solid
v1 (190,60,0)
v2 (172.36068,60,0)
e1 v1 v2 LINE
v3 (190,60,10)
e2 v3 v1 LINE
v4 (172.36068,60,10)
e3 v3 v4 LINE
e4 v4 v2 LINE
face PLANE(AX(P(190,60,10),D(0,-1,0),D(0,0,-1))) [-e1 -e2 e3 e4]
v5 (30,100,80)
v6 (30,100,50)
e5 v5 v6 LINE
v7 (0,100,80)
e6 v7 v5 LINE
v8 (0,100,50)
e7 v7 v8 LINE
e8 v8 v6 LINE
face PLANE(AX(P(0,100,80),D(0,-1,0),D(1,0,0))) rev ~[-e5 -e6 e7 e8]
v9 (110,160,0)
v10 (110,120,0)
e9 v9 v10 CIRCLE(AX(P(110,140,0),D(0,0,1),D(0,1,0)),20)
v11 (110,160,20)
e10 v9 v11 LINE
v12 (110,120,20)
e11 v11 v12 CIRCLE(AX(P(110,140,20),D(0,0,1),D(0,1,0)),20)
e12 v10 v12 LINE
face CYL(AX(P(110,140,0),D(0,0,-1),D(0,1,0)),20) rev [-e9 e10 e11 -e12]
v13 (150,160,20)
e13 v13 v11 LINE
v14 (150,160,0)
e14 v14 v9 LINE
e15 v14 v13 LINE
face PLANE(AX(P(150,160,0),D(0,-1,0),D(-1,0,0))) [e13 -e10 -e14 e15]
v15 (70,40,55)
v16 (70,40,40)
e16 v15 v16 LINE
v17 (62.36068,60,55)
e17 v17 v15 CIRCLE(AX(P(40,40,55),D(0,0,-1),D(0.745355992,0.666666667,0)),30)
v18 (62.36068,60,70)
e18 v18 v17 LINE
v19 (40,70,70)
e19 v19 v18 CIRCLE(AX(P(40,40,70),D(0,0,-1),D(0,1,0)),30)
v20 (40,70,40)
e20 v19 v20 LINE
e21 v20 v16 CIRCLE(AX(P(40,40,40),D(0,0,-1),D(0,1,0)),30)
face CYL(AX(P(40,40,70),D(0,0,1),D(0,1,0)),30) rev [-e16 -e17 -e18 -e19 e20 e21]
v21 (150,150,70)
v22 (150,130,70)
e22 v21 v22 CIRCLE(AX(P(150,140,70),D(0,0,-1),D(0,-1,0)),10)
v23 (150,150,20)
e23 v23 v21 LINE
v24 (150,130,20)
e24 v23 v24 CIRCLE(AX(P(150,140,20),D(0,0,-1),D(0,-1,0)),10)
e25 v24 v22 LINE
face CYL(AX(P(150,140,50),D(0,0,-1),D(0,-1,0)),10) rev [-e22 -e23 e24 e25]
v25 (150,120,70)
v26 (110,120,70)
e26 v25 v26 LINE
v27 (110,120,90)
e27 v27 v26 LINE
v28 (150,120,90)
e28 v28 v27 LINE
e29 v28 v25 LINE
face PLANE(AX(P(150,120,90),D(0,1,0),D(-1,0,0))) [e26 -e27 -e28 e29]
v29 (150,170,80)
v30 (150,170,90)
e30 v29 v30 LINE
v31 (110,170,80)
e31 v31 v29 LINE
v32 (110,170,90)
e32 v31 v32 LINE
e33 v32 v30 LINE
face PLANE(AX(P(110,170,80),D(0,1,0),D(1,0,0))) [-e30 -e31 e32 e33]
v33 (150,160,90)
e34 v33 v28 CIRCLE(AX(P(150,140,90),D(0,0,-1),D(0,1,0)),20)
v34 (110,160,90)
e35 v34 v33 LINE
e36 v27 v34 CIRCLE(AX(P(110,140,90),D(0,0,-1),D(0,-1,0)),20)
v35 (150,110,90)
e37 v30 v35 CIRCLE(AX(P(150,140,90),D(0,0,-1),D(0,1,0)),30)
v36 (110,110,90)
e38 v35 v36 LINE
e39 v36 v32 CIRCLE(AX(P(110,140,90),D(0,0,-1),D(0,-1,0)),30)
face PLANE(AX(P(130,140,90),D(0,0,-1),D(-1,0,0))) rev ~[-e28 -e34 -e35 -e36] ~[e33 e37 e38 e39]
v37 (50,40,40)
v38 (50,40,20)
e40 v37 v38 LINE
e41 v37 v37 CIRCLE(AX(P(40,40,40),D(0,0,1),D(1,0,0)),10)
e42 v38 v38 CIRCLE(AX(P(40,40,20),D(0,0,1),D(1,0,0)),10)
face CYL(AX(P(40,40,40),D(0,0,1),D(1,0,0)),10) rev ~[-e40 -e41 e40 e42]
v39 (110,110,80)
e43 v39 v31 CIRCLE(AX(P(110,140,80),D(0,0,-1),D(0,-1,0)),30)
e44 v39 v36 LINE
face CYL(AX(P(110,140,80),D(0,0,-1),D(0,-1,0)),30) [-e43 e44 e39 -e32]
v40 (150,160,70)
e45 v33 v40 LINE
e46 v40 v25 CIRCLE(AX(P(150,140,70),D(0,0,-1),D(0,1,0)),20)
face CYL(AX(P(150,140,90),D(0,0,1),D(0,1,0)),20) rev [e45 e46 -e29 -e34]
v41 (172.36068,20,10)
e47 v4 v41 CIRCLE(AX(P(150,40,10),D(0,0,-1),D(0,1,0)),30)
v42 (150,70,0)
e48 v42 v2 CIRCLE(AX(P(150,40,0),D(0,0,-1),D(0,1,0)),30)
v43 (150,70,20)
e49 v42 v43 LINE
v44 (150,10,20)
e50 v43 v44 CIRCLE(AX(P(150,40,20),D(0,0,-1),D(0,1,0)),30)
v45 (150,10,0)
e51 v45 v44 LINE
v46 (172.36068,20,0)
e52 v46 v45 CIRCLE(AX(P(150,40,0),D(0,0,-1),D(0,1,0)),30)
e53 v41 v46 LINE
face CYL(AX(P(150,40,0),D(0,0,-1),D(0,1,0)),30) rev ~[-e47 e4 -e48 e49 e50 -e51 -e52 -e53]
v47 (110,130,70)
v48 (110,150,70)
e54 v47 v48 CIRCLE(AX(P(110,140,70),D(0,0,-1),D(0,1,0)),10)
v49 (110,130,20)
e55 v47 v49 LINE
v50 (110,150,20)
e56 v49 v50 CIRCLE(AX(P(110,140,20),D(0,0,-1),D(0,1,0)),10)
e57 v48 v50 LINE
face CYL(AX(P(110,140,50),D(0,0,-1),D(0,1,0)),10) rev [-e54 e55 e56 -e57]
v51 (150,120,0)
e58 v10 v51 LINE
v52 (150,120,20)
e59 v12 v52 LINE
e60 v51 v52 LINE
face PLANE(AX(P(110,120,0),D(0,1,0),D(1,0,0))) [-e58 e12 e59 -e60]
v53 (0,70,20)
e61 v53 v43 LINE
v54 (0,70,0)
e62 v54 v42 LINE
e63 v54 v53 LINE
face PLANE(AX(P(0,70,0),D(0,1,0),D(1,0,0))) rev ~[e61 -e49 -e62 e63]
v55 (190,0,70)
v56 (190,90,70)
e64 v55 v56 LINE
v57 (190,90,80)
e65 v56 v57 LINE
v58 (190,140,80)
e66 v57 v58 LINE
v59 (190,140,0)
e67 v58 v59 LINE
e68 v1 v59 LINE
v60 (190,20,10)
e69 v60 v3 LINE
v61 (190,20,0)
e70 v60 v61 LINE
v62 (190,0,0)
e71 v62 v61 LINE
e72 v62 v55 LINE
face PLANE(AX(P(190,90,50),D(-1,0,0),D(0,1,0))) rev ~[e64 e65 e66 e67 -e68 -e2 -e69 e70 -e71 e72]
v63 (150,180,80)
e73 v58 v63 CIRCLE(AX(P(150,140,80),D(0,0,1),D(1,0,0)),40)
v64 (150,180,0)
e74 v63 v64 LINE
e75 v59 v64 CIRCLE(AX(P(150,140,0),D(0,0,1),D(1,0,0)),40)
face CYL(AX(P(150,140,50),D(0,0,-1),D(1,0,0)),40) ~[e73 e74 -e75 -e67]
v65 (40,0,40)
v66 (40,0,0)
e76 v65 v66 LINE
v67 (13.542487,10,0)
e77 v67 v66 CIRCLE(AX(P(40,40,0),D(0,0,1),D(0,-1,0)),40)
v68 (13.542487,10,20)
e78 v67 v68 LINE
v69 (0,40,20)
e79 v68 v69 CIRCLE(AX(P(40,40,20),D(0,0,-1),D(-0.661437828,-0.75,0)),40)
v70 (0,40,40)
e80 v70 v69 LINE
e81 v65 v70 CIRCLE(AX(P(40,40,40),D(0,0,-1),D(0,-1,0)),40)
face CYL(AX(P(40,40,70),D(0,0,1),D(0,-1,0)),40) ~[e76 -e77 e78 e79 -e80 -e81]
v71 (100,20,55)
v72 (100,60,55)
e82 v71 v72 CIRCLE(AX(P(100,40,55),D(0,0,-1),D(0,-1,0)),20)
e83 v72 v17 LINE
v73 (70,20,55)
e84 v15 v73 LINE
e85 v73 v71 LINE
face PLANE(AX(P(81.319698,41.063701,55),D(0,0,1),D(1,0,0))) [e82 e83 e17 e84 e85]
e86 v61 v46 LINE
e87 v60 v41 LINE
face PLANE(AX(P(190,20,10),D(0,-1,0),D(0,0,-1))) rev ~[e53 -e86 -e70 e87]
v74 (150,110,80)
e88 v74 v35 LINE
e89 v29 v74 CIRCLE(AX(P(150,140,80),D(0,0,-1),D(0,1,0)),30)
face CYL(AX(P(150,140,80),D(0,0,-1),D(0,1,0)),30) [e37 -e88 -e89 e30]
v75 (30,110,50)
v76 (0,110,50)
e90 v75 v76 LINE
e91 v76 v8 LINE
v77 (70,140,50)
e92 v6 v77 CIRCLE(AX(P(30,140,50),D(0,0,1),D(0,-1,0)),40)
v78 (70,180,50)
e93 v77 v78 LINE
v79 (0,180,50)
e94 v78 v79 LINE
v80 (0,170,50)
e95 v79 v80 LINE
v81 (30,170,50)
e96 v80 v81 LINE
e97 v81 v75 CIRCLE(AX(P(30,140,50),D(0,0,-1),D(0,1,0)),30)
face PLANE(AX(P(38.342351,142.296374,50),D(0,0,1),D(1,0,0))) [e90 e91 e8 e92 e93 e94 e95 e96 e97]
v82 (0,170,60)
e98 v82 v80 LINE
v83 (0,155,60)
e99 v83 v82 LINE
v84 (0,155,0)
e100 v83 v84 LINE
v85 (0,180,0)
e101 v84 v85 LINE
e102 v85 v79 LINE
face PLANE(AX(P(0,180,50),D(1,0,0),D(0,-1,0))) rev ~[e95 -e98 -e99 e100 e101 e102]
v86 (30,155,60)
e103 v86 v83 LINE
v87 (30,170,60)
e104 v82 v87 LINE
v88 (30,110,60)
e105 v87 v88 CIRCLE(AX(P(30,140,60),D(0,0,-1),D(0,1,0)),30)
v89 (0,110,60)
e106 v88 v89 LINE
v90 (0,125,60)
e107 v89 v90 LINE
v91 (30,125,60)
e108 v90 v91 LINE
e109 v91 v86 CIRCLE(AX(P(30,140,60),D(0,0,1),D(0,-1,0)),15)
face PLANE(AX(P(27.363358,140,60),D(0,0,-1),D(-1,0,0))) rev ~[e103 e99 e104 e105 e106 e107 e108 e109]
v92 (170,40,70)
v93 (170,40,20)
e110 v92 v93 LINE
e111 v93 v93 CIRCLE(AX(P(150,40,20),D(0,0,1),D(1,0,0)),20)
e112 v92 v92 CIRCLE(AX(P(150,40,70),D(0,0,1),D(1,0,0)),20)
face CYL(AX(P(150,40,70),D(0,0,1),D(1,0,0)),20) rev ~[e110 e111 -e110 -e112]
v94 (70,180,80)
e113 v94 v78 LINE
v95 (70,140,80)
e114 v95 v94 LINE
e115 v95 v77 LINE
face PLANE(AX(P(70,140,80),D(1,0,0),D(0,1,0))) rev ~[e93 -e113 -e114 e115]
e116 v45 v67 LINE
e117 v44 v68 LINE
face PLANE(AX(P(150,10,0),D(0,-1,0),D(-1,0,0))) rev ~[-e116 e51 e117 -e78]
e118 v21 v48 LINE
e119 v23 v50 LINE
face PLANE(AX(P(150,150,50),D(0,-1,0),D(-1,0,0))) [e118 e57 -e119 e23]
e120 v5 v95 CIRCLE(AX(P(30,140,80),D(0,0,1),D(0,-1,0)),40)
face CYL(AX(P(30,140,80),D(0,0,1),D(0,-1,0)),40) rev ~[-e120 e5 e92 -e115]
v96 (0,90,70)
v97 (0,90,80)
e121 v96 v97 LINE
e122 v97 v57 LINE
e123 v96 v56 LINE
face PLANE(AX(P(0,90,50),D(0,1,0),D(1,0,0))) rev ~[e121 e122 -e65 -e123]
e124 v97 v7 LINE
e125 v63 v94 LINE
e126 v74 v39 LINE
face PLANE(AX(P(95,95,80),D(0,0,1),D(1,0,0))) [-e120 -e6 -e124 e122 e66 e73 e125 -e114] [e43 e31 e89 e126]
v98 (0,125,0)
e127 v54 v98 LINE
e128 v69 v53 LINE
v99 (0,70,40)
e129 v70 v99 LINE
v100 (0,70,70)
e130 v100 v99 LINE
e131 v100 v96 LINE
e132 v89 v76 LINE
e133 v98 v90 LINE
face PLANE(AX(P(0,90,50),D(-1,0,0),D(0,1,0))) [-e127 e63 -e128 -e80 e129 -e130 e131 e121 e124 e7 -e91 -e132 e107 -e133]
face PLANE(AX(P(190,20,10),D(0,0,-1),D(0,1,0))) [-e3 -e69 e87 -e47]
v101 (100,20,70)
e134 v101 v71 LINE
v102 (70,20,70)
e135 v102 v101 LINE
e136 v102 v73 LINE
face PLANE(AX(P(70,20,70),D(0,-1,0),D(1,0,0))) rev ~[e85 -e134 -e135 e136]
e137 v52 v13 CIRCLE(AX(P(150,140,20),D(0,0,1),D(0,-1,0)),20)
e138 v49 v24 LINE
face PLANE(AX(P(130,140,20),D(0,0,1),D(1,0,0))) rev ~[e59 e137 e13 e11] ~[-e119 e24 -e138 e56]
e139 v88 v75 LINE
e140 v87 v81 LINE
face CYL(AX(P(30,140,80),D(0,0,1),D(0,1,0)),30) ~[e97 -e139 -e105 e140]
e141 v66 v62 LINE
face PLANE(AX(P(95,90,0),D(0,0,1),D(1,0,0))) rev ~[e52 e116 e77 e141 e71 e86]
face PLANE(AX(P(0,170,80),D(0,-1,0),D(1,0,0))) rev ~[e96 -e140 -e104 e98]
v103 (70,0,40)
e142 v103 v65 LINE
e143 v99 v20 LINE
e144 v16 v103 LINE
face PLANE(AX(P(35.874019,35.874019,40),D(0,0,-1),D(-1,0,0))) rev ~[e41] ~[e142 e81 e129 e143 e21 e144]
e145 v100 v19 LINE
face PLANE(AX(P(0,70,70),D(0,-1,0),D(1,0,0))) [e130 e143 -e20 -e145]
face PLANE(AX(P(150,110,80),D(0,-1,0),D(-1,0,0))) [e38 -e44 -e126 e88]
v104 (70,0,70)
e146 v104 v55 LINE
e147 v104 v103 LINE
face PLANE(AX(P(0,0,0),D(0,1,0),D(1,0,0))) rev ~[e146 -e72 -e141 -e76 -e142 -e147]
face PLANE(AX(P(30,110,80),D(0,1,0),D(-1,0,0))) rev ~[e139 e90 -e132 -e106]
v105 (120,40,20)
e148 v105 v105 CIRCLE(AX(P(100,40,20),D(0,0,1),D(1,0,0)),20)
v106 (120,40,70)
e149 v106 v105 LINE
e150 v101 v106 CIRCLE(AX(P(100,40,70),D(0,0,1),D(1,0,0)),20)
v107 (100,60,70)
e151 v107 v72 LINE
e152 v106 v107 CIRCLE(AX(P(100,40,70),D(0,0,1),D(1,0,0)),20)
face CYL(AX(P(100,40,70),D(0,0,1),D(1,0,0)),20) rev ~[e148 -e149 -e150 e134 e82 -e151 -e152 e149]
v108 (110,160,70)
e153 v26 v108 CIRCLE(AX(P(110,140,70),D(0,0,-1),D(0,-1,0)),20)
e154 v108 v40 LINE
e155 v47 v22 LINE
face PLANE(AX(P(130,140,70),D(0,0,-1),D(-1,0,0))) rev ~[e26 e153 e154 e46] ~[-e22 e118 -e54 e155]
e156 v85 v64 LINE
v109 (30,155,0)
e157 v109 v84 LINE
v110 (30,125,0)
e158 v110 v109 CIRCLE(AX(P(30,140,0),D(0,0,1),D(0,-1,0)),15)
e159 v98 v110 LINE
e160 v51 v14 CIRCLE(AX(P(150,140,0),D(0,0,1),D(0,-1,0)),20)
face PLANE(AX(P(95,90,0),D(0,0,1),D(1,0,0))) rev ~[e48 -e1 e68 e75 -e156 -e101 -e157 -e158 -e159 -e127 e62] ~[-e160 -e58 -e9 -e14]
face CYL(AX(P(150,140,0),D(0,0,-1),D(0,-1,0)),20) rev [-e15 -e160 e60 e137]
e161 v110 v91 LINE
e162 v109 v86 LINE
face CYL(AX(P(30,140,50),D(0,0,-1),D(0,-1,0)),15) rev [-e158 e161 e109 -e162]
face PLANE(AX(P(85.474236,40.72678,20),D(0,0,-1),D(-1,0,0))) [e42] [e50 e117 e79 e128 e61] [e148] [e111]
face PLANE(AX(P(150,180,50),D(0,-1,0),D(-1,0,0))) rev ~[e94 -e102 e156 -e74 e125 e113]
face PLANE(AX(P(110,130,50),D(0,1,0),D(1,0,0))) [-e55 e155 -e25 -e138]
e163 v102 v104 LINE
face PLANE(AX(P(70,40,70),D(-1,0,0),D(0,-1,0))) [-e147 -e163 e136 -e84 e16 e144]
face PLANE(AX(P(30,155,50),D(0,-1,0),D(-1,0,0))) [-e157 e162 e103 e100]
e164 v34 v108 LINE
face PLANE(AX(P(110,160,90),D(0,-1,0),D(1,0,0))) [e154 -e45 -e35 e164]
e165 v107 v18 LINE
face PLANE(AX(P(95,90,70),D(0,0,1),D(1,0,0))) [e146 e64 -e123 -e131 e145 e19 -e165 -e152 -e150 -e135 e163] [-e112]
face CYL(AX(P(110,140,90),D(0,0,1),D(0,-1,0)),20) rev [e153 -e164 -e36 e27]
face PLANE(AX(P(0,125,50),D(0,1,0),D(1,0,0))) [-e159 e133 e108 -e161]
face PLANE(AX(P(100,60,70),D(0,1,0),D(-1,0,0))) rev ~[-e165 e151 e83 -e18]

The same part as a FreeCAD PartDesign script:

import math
import FreeCAD as App
import Part
import Sketcher
from FreeCAD import Vector


def add_polygon(sketch, points):
    """Adds a closed chain of lines whose ends are joined by coincident constraints."""
    first, n = sketch.GeometryCount, len(points)
    for a, b in zip(points, points[1:] + points[:1]):
        sketch.addGeometry(Part.LineSegment(App.Vector(*a, 0), App.Vector(*b, 0)), False)
    for i in range(n):
        sketch.addConstraint(Sketcher.Constraint("Coincident", first + i, 2, first + (i + 1) % n, 1))

doc = App.newDocument("Part")
body = doc.addObject("PartDesign::Body", "Body")

# Sketch on XY plane
sketch1 = body.newObject("Sketcher::SketchObject", "Sketch")
sketch1.AttachmentSupport = (doc.getObject("XY_Plane"), [""])
sketch1.MapMode = "FlatFace"
add_polygon(sketch1, [(0, 180), (0, 0), (190, 0), (190, 180)])  # lines 0-3
sketch1.addConstraint([
    Sketcher.Constraint("Vertical", 0),
    Sketcher.Constraint("Horizontal", 1),
    Sketcher.Constraint("Vertical", 2),
    Sketcher.Constraint("Horizontal", 3),
    Sketcher.Constraint("Coincident", 0, 2, -1, 1),
    Sketcher.Constraint("DistanceX", 1, 1, 1, 2, 190.0),
    Sketcher.Constraint("DistanceY", 0, 2, 0, 1, 180.0),
])
pad1 = body.newObject("PartDesign::Pad", "Pad")
pad1.Profile = sketch1
pad1.Length = 70

# Sketch on XY plane
sketch2 = body.newObject("Sketcher::SketchObject", "Sketch001")
sketch2.AttachmentSupport = (doc.getObject("XY_Plane"), [""])
sketch2.MapMode = "FlatFace"
sketch2.addGeometry([
    Part.LineSegment(Vector(110, 150, 0), Vector(150, 150, 0)),
    Part.ArcOfCircle(Part.Circle(Vector(150, 140, 0), Vector(0, 0, 1), 10), math.radians(-90), math.radians(90)),
    Part.LineSegment(Vector(150, 130, 0), Vector(110, 130, 0)),
    Part.ArcOfCircle(Part.Circle(Vector(110, 140, 0), Vector(0, 0, 1), 10), math.radians(90), math.radians(270)),
], False)
sketch2.addConstraint([
    Sketcher.Constraint("Tangent", 0, 2, 1, 2),
    Sketcher.Constraint("Tangent", 1, 1, 2, 1),
    Sketcher.Constraint("Tangent", 2, 2, 3, 2),
    Sketcher.Constraint("Tangent", 3, 1, 0, 1),
    Sketcher.Constraint("Horizontal", 0),
    Sketcher.Constraint("Horizontal", 2),
    Sketcher.Constraint("Radius", 1, 10.0),
    Sketcher.Constraint("DistanceX", 0, 1, 0, 2, 40.0),
    Sketcher.Constraint("DistanceX", -1, 1, 1, 3, 150.0),
    Sketcher.Constraint("DistanceY", -1, 1, 1, 3, 140.0),
])
pocket1 = body.newObject("PartDesign::Pocket", "Pocket")
pocket1.Profile = sketch2
pocket1.Length = 70
pocket1.Reversed = True

# Sketch on XY plane
sketch3 = body.newObject("Sketcher::SketchObject", "Sketch002")
sketch3.AttachmentSupport = (doc.getObject("XY_Plane"), [""])
sketch3.MapMode = "FlatFace"
sketch3.addGeometry([
    Part.LineSegment(Vector(150, 120, 0), Vector(110, 120, 0)),
    Part.ArcOfCircle(Part.Circle(Vector(110, 140, 0), Vector(0, 0, 1), 20), math.radians(90), math.radians(270)),
    Part.LineSegment(Vector(110, 160, 0), Vector(150, 160, 0)),
    Part.ArcOfCircle(Part.Circle(Vector(150, 140, 0), Vector(0, 0, 1), 20), math.radians(-90), math.radians(90)),
], False)
sketch3.addConstraint([
    Sketcher.Constraint("Tangent", 0, 2, 1, 2),
    Sketcher.Constraint("Tangent", 1, 1, 2, 1),
    Sketcher.Constraint("Tangent", 2, 2, 3, 2),
    Sketcher.Constraint("Tangent", 3, 1, 0, 1),
    Sketcher.Constraint("Horizontal", 0),
    Sketcher.Constraint("Horizontal", 2),
    Sketcher.Constraint("Radius", 1, 20.0),
    Sketcher.Constraint("DistanceX", 0, 2, 0, 1, 40.0),
    Sketcher.Constraint("DistanceX", -1, 1, 1, 3, 110.0),
    Sketcher.Constraint("DistanceY", -1, 1, 1, 3, 140.0),
])
pocket2 = body.newObject("PartDesign::Pocket", "Pocket001")
pocket2.Profile = sketch3
pocket2.Length = 20
pocket2.Reversed = True

# Sketch on XY plane
sketch4 = body.newObject("Sketcher::SketchObject", "Sketch003")
sketch4.AttachmentSupport = (doc.getObject("XY_Plane"), [""])
sketch4.MapMode = "FlatFace"
sketch4.AttachmentOffset = App.Placement(Vector(0, 0, 70), App.Rotation())
sketch4.addGeometry([
    Part.LineSegment(Vector(190, 180, 0), Vector(150, 180, 0)),  # 0
    Part.ArcOfCircle(Part.Circle(Vector(150, 140, 0), Vector(0, 0, 1), 40), math.radians(0), math.radians(90)),  # 1
    Part.LineSegment(Vector(190, 140, 0), Vector(190, 180, 0)),  # 2
    Part.LineSegment(Vector(0, 40, 0), Vector(0, 0, 0)),  # 3
    Part.LineSegment(Vector(0, 0, 0), Vector(40, 0, 0)),  # 4
    Part.ArcOfCircle(Part.Circle(Vector(40, 40, 0), Vector(0, 0, 1), 40), math.radians(-180), math.radians(-90)),  # 5
], False)
sketch4.addConstraint([
    Sketcher.Constraint("Tangent", 0, 2, 1, 2),
    Sketcher.Constraint("Tangent", 1, 1, 2, 1),
    Sketcher.Constraint("Coincident", 2, 2, 0, 1),
    Sketcher.Constraint("Coincident", 3, 2, 4, 1),
    Sketcher.Constraint("Tangent", 4, 2, 5, 2),
    Sketcher.Constraint("Tangent", 5, 1, 3, 1),
    Sketcher.Constraint("Horizontal", 0),
    Sketcher.Constraint("Vertical", 2),
    Sketcher.Constraint("Vertical", 3),
    Sketcher.Constraint("Horizontal", 4),
    Sketcher.Constraint("Coincident", 3, 2, -1, 1),
    Sketcher.Constraint("Equal", 1, 5),
    Sketcher.Constraint("Radius", 1, 40.0),
    Sketcher.Constraint("DistanceX", -1, 1, 1, 3, 150.0),
    Sketcher.Constraint("DistanceY", -1, 1, 1, 3, 140.0),
])
pocket3 = body.newObject("PartDesign::Pocket", "Pocket002")
pocket3.Profile = sketch4
pocket3.Length = 116

# Sketch on XY plane
sketch5 = body.newObject("Sketcher::SketchObject", "Sketch004")
sketch5.AttachmentSupport = (doc.getObject("XY_Plane"), [""])
sketch5.MapMode = "FlatFace"
sketch5.AttachmentOffset = App.Placement(Vector(0, 0, 70), App.Rotation())
sketch5.addGeometry([
    Part.LineSegment(Vector(30, 155, 0), Vector(0, 155, 0)),
    Part.LineSegment(Vector(0, 155, 0), Vector(0, 125, 0)),
    Part.LineSegment(Vector(0, 125, 0), Vector(30, 125, 0)),
    Part.ArcOfCircle(Part.Circle(Vector(30, 140, 0), Vector(0, 0, 1), 15), math.radians(-90), math.radians(90)),
], False)
sketch5.addConstraint([
    Sketcher.Constraint("Coincident", 0, 2, 1, 1),
    Sketcher.Constraint("Coincident", 1, 2, 2, 1),
    Sketcher.Constraint("Tangent", 2, 2, 3, 1),
    Sketcher.Constraint("Tangent", 3, 2, 0, 1),
    Sketcher.Constraint("Horizontal", 0),
    Sketcher.Constraint("Vertical", 1),
    Sketcher.Constraint("Horizontal", 2),
    Sketcher.Constraint("PointOnObject", 0, 2, -2),
    Sketcher.Constraint("Equal", 2, 1),
    Sketcher.Constraint("Radius", 3, 15.0),
    Sketcher.Constraint("DistanceY", -1, 1, 3, 3, 140.0),
])
pocket4 = body.newObject("PartDesign::Pocket", "Pocket003")
pocket4.Profile = sketch5
pocket4.Length = 116

# Sketch on YZ plane
sketch6 = body.newObject("Sketcher::SketchObject", "Sketch005")
sketch6.AttachmentSupport = (doc.getObject("YZ_Plane"), [""])
sketch6.MapMode = "FlatFace"
add_polygon(sketch6, [(180, 50), (90, 50), (90, 70), (180, 70)])  # lines 0-3
sketch6.addConstraint([
    Sketcher.Constraint("Horizontal", 0),
    Sketcher.Constraint("Vertical", 1),
    Sketcher.Constraint("Horizontal", 2),
    Sketcher.Constraint("Vertical", 3),
    Sketcher.Constraint("DistanceX", 0, 2, 0, 1, 90.0),
    Sketcher.Constraint("DistanceY", 1, 1, 1, 2, 20.0),
    Sketcher.Constraint("DistanceX", -1, 1, 0, 2, 90.0),
    Sketcher.Constraint("DistanceY", -1, 1, 0, 2, 50.0),
])
pocket5 = body.newObject("PartDesign::Pocket", "Pocket004")
pocket5.Profile = sketch6
pocket5.Length = 242
pocket5.Reversed = True

# Sketch on XY plane
sketch7 = body.newObject("Sketcher::SketchObject", "Sketch006")
sketch7.AttachmentSupport = (doc.getObject("XY_Plane"), [""])
sketch7.MapMode = "FlatFace"
sketch7.AttachmentOffset = App.Placement(Vector(0, 0, 50), App.Rotation())
sketch7.addGeometry([
    Part.LineSegment(Vector(110, 110, 0), Vector(150, 110, 0)),
    Part.ArcOfCircle(Part.Circle(Vector(150, 140, 0), Vector(0, 0, 1), 30), math.radians(-90), math.radians(90)),
    Part.LineSegment(Vector(150, 170, 0), Vector(110, 170, 0)),
    Part.ArcOfCircle(Part.Circle(Vector(110, 140, 0), Vector(0, 0, 1), 30), math.radians(90), math.radians(270)),
], False)
sketch7.addConstraint([
    Sketcher.Constraint("Tangent", 0, 2, 1, 1),
    Sketcher.Constraint("Tangent", 1, 2, 2, 1),
    Sketcher.Constraint("Tangent", 2, 2, 3, 1),
    Sketcher.Constraint("Tangent", 3, 2, 0, 1),
    Sketcher.Constraint("Horizontal", 0),
    Sketcher.Constraint("Horizontal", 2),
    Sketcher.Constraint("Radius", 1, 30.0),
    Sketcher.Constraint("DistanceX", 0, 1, 0, 2, 40.0),
    Sketcher.Constraint("DistanceX", -1, 1, 1, 3, 150.0),
    Sketcher.Constraint("DistanceY", -1, 1, 1, 3, 140.0),
])
pad2 = body.newObject("PartDesign::Pad", "Pad001")
pad2.Profile = sketch7
pad2.Length = 10

# Sketch on XY plane
sketch8 = body.newObject("Sketcher::SketchObject", "Sketch007")
sketch8.AttachmentSupport = (doc.getObject("XY_Plane"), [""])
sketch8.MapMode = "FlatFace"
sketch8.AttachmentOffset = App.Placement(Vector(0, 0, 50), App.Rotation())
sketch8.addGeometry([
    Part.LineSegment(Vector(110, 150, 0), Vector(150, 150, 0)),
    Part.ArcOfCircle(Part.Circle(Vector(150, 140, 0), Vector(0, 0, 1), 10), math.radians(-90), math.radians(90)),
    Part.LineSegment(Vector(150, 130, 0), Vector(110, 130, 0)),
    Part.ArcOfCircle(Part.Circle(Vector(110, 140, 0), Vector(0, 0, 1), 10), math.radians(90), math.radians(270)),
], False)
sketch8.addConstraint([
    Sketcher.Constraint("Tangent", 0, 2, 1, 2),
    Sketcher.Constraint("Tangent", 1, 1, 2, 1),
    Sketcher.Constraint("Tangent", 2, 2, 3, 2),
    Sketcher.Constraint("Tangent", 3, 1, 0, 1),
    Sketcher.Constraint("Horizontal", 0),
    Sketcher.Constraint("Horizontal", 2),
    Sketcher.Constraint("Radius", 1, 10.0),
    Sketcher.Constraint("DistanceX", 0, 1, 0, 2, 40.0),
    Sketcher.Constraint("DistanceX", -1, 1, 1, 3, 150.0),
    Sketcher.Constraint("DistanceY", -1, 1, 1, 3, 140.0),
])
pocket6 = body.newObject("PartDesign::Pocket", "Pocket005")
pocket6.Profile = sketch8
pocket6.Length = 20
pocket6.Reversed = True

# Sketch on XY plane
sketch9 = body.newObject("Sketcher::SketchObject", "Sketch008")
sketch9.AttachmentSupport = (doc.getObject("XY_Plane"), [""])
sketch9.MapMode = "FlatFace"
sketch9.AttachmentOffset = App.Placement(Vector(0, 0, 50), App.Rotation())
sketch9.addGeometry([
    Part.LineSegment(Vector(0, 155, 0), Vector(30, 155, 0)),  # 0
    Part.ArcOfCircle(Part.Circle(Vector(30, 140, 0), Vector(0, 0, 1), 15), math.radians(-90), math.radians(90)),  # 1
    Part.LineSegment(Vector(30, 125, 0), Vector(0, 125, 0)),  # 2
    Part.LineSegment(Vector(0, 125, 0), Vector(0, 110, 0)),  # 3
    Part.LineSegment(Vector(0, 110, 0), Vector(30, 110, 0)),  # 4
    Part.ArcOfCircle(Part.Circle(Vector(30, 140, 0), Vector(0, 0, 1), 30), math.radians(-90), math.radians(90)),  # 5
    Part.LineSegment(Vector(30, 170, 0), Vector(0, 170, 0)),  # 6
    Part.LineSegment(Vector(0, 170, 0), Vector(0, 155, 0)),  # 7
], False)
sketch9.addConstraint([
    Sketcher.Constraint("Tangent", 0, 2, 1, 2),
    Sketcher.Constraint("Tangent", 1, 1, 2, 1),
    Sketcher.Constraint("Coincident", 2, 2, 3, 1),
    Sketcher.Constraint("Coincident", 3, 2, 4, 1),
    Sketcher.Constraint("Tangent", 4, 2, 5, 1),
    Sketcher.Constraint("Tangent", 5, 2, 6, 1),
    Sketcher.Constraint("Coincident", 6, 2, 7, 1),
    Sketcher.Constraint("Coincident", 7, 2, 0, 1),
    Sketcher.Constraint("Horizontal", 0),
    Sketcher.Constraint("Horizontal", 2),
    Sketcher.Constraint("Vertical", 3),
    Sketcher.Constraint("Horizontal", 4),
    Sketcher.Constraint("Horizontal", 6),
    Sketcher.Constraint("Vertical", 7),
    Sketcher.Constraint("Coincident", 5, 3, 1, 3),
    Sketcher.Constraint("PointOnObject", 2, 2, -2),
    Sketcher.Constraint("PointOnObject", 6, 2, -2),
    Sketcher.Constraint("Radius", 1, 15.0),
    Sketcher.Constraint("Radius", 5, 30.0),
    Sketcher.Constraint("DistanceX", 0, 1, 0, 2, 30.0),
    Sketcher.Constraint("DistanceY", -1, 1, 1, 3, 140.0),
])
pad3 = body.newObject("PartDesign::Pad", "Pad002")
pad3.Profile = sketch9
pad3.Length = 10

# Sketch on XY plane
sketch10 = body.newObject("Sketcher::SketchObject", "Sketch009")
sketch10.AttachmentSupport = (doc.getObject("XY_Plane"), [""])
sketch10.MapMode = "FlatFace"
sketch10.AttachmentOffset = App.Placement(Vector(0, 0, 50), App.Rotation())
sketch10.addGeometry([
    Part.LineSegment(Vector(150, 180, 0), Vector(0, 180, 0)),  # 0
    Part.LineSegment(Vector(0, 180, 0), Vector(0, 170, 0)),  # 1
    Part.LineSegment(Vector(0, 170, 0), Vector(30, 170, 0)),  # 2
    Part.ArcOfCircle(Part.Circle(Vector(30, 140, 0), Vector(0, 0, 1), 30), math.radians(-90), math.radians(90)),  # 3
    Part.LineSegment(Vector(30, 110, 0), Vector(0, 110, 0)),  # 4
    Part.LineSegment(Vector(0, 110, 0), Vector(0, 100, 0)),  # 5
    Part.LineSegment(Vector(0, 100, 0), Vector(190, 100, 0)),  # 6
    Part.LineSegment(Vector(190, 100, 0), Vector(190, 140, 0)),  # 7
    Part.ArcOfCircle(Part.Circle(Vector(150, 140, 0), Vector(0, 0, 1), 40), math.radians(0), math.radians(90)),  # 8
    Part.LineSegment(Vector(150, 110, 0), Vector(110, 110, 0)),  # 9
    Part.ArcOfCircle(Part.Circle(Vector(110, 140, 0), Vector(0, 0, 1), 30), math.radians(90), math.radians(270)),  # 10
    Part.LineSegment(Vector(110, 170, 0), Vector(150, 170, 0)),  # 11
    Part.ArcOfCircle(Part.Circle(Vector(150, 140, 0), Vector(0, 0, 1), 30), math.radians(-90), math.radians(90)),  # 12
], False)
sketch10.addConstraint([
    Sketcher.Constraint("Coincident", 0, 2, 1, 1),
    Sketcher.Constraint("Coincident", 1, 2, 2, 1),
    Sketcher.Constraint("Tangent", 2, 2, 3, 2),
    Sketcher.Constraint("Tangent", 3, 1, 4, 1),
    Sketcher.Constraint("Coincident", 4, 2, 5, 1),
    Sketcher.Constraint("Coincident", 5, 2, 6, 1),
    Sketcher.Constraint("Coincident", 6, 2, 7, 1),
    Sketcher.Constraint("Tangent", 7, 2, 8, 1),
    Sketcher.Constraint("Tangent", 8, 2, 0, 1),
    Sketcher.Constraint("Tangent", 9, 2, 10, 2),
    Sketcher.Constraint("Tangent", 10, 1, 11, 1),
    Sketcher.Constraint("Tangent", 11, 2, 12, 2),
    Sketcher.Constraint("Tangent", 12, 1, 9, 1),
    Sketcher.Constraint("Horizontal", 0),
    Sketcher.Constraint("Vertical", 1),
    Sketcher.Constraint("Horizontal", 2),
    Sketcher.Constraint("Horizontal", 4),
    Sketcher.Constraint("Vertical", 5),
    Sketcher.Constraint("Horizontal", 6),
    Sketcher.Constraint("Vertical", 7),
    Sketcher.Constraint("Horizontal", 9),
    Sketcher.Constraint("Horizontal", 11),
    Sketcher.Constraint("Coincident", 12, 3, 8, 3),
    Sketcher.Constraint("Equal", 3, 10),
    Sketcher.Constraint("PointOnObject", 0, 2, -2),
    Sketcher.Constraint("PointOnObject", 4, 2, -2),
    Sketcher.Constraint("Horizontal", 3, 3, 8, 3),
    Sketcher.Constraint("Equal", 1, 5),
    Sketcher.Constraint("Equal", 11, 7),
    Sketcher.Constraint("Radius", 3, 30.0),
    Sketcher.Constraint("Radius", 8, 40.0),
    Sketcher.Constraint("DistanceX", 0, 2, 0, 1, 150.0),
    Sketcher.Constraint("DistanceX", 2, 1, 2, 2, 30.0),
    Sketcher.Constraint("DistanceY", -1, 1, 3, 3, 140.0),
])
pad4 = body.newObject("PartDesign::Pad", "Pad003")
pad4.Profile = sketch10
pad4.Length = 30

# Sketch on XY plane
sketch11 = body.newObject("Sketcher::SketchObject", "Sketch010")
sketch11.AttachmentSupport = (doc.getObject("XY_Plane"), [""])
sketch11.MapMode = "FlatFace"
sketch11.AttachmentOffset = App.Placement(Vector(0, 0, 60), App.Rotation())
sketch11.addGeometry([
    Part.LineSegment(Vector(150, 170, 0), Vector(110, 170, 0)),
    Part.ArcOfCircle(Part.Circle(Vector(110, 140, 0), Vector(0, 0, 1), 30), math.radians(90), math.radians(270)),
    Part.LineSegment(Vector(110, 110, 0), Vector(150, 110, 0)),
    Part.ArcOfCircle(Part.Circle(Vector(150, 140, 0), Vector(0, 0, 1), 30), math.radians(-90), math.radians(90)),
], False)
sketch11.addConstraint([
    Sketcher.Constraint("Tangent", 0, 2, 1, 1),
    Sketcher.Constraint("Tangent", 1, 2, 2, 1),
    Sketcher.Constraint("Tangent", 2, 2, 3, 1),
    Sketcher.Constraint("Tangent", 3, 2, 0, 1),
    Sketcher.Constraint("Horizontal", 0),
    Sketcher.Constraint("Horizontal", 2),
    Sketcher.Constraint("Radius", 1, 30.0),
    Sketcher.Constraint("DistanceX", 0, 2, 0, 1, 40.0),
    Sketcher.Constraint("DistanceX", -1, 1, 1, 3, 110.0),
    Sketcher.Constraint("DistanceY", -1, 1, 1, 3, 140.0),
])
pocket7 = body.newObject("PartDesign::Pocket", "Pocket006")
pocket7.Profile = sketch11
pocket7.Length = 10

# Sketch on XY plane
sketch12 = body.newObject("Sketcher::SketchObject", "Sketch011")
sketch12.AttachmentSupport = (doc.getObject("XY_Plane"), [""])
sketch12.MapMode = "FlatFace"
sketch12.AttachmentOffset = App.Placement(Vector(0, 0, 50), App.Rotation())
add_polygon(sketch12, [(0, 100), (0, 90), (190, 90), (190, 100)])  # lines 0-3
sketch12.addConstraint([
    Sketcher.Constraint("Vertical", 0),
    Sketcher.Constraint("Horizontal", 1),
    Sketcher.Constraint("Vertical", 2),
    Sketcher.Constraint("Horizontal", 3),
    Sketcher.Constraint("PointOnObject", 0, 2, -2),
    Sketcher.Constraint("DistanceX", 1, 1, 1, 2, 190.0),
    Sketcher.Constraint("DistanceY", 0, 2, 0, 1, 10.0),
    Sketcher.Constraint("DistanceY", -1, 1, 0, 2, 90.0),
])
pad5 = body.newObject("PartDesign::Pad", "Pad004")
pad5.Profile = sketch12
pad5.Length = 30

# Sketch on XY plane
sketch13 = body.newObject("Sketcher::SketchObject", "Sketch012")
sketch13.AttachmentSupport = (doc.getObject("XY_Plane"), [""])
sketch13.MapMode = "FlatFace"
sketch13.AttachmentOffset = App.Placement(Vector(0, 0, 80), App.Rotation())
sketch13.addGeometry([
    Part.LineSegment(Vector(0, 180, 0), Vector(0, 170, 0)),  # 0
    Part.LineSegment(Vector(0, 170, 0), Vector(30, 170, 0)),  # 1
    Part.ArcOfCircle(Part.Circle(Vector(30, 140, 0), Vector(0, 0, 1), 30), math.radians(-90), math.radians(90)),  # 2
    Part.LineSegment(Vector(30, 110, 0), Vector(0, 110, 0)),  # 3
    Part.LineSegment(Vector(0, 110, 0), Vector(0, 100, 0)),  # 4
    Part.LineSegment(Vector(0, 100, 0), Vector(30, 100, 0)),  # 5
    Part.ArcOfCircle(Part.Circle(Vector(30, 140, 0), Vector(0, 0, 1), 40), math.radians(-90), math.radians(0)),  # 6
    Part.LineSegment(Vector(70, 140, 0), Vector(70, 180, 0)),  # 7
    Part.LineSegment(Vector(70, 180, 0), Vector(0, 180, 0)),  # 8
], False)
sketch13.addConstraint([
    Sketcher.Constraint("Coincident", 0, 2, 1, 1),
    Sketcher.Constraint("Tangent", 1, 2, 2, 2),
    Sketcher.Constraint("Tangent", 2, 1, 3, 1),
    Sketcher.Constraint("Coincident", 3, 2, 4, 1),
    Sketcher.Constraint("Coincident", 4, 2, 5, 1),
    Sketcher.Constraint("Tangent", 5, 2, 6, 1),
    Sketcher.Constraint("Tangent", 6, 2, 7, 1),
    Sketcher.Constraint("Coincident", 7, 2, 8, 1),
    Sketcher.Constraint("Coincident", 8, 2, 0, 1),
    Sketcher.Constraint("Vertical", 0),
    Sketcher.Constraint("Horizontal", 1),
    Sketcher.Constraint("Horizontal", 3),
    Sketcher.Constraint("Vertical", 4),
    Sketcher.Constraint("Horizontal", 5),
    Sketcher.Constraint("Vertical", 7),
    Sketcher.Constraint("Horizontal", 8),
    Sketcher.Constraint("Coincident", 6, 3, 2, 3),
    Sketcher.Constraint("PointOnObject", 0, 2, -2),
    Sketcher.Constraint("PointOnObject", 3, 2, -2),
    Sketcher.Constraint("Equal", 0, 4),
    Sketcher.Constraint("Radius", 2, 30.0),
    Sketcher.Constraint("Radius", 6, 40.0),
    Sketcher.Constraint("DistanceX", 1, 1, 1, 2, 30.0),
    Sketcher.Constraint("DistanceY", -1, 1, 2, 3, 140.0),
])
pocket8 = body.newObject("PartDesign::Pocket", "Pocket007")
pocket8.Profile = sketch13
pocket8.Length = 30

# Sketch on XY plane
sketch14 = body.newObject("Sketcher::SketchObject", "Sketch013")
sketch14.AttachmentSupport = (doc.getObject("XY_Plane"), [""])
sketch14.MapMode = "FlatFace"
sketch14.AttachmentOffset = App.Placement(Vector(0, 0, 50), App.Rotation())
sketch14.addGeometry([
    Part.LineSegment(Vector(110, 110, 0), Vector(150, 110, 0)),
    Part.ArcOfCircle(Part.Circle(Vector(150, 140, 0), Vector(0, 0, 1), 30), math.radians(-90), math.radians(90)),
    Part.LineSegment(Vector(150, 170, 0), Vector(110, 170, 0)),
    Part.ArcOfCircle(Part.Circle(Vector(110, 140, 0), Vector(0, 0, 1), 30), math.radians(90), math.radians(270)),
], False)
sketch14.addConstraint([
    Sketcher.Constraint("Tangent", 0, 2, 1, 1),
    Sketcher.Constraint("Tangent", 1, 2, 2, 1),
    Sketcher.Constraint("Tangent", 2, 2, 3, 1),
    Sketcher.Constraint("Tangent", 3, 2, 0, 1),
    Sketcher.Constraint("Horizontal", 0),
    Sketcher.Constraint("Horizontal", 2),
    Sketcher.Constraint("Radius", 1, 30.0),
    Sketcher.Constraint("DistanceX", 0, 1, 0, 2, 40.0),
    Sketcher.Constraint("DistanceX", -1, 1, 1, 3, 150.0),
    Sketcher.Constraint("DistanceY", -1, 1, 1, 3, 140.0),
])
pad6 = body.newObject("PartDesign::Pad", "Pad005")
pad6.Profile = sketch14
pad6.Length = 30

# Sketch on XY plane
sketch15 = body.newObject("Sketcher::SketchObject", "Sketch014")
sketch15.AttachmentSupport = (doc.getObject("XY_Plane"), [""])
sketch15.MapMode = "FlatFace"
sketch15.AttachmentOffset = App.Placement(Vector(0, 0, 80), App.Rotation())
sketch15.addGeometry([
    Part.LineSegment(Vector(150, 170, 0), Vector(110, 170, 0)),
    Part.ArcOfCircle(Part.Circle(Vector(110, 140, 0), Vector(0, 0, 1), 30), math.radians(90), math.radians(270)),
    Part.LineSegment(Vector(110, 110, 0), Vector(150, 110, 0)),
    Part.ArcOfCircle(Part.Circle(Vector(150, 140, 0), Vector(0, 0, 1), 30), math.radians(-90), math.radians(90)),
], False)
sketch15.addConstraint([
    Sketcher.Constraint("Tangent", 0, 2, 1, 1),
    Sketcher.Constraint("Tangent", 1, 2, 2, 1),
    Sketcher.Constraint("Tangent", 2, 2, 3, 1),
    Sketcher.Constraint("Tangent", 3, 2, 0, 1),
    Sketcher.Constraint("Horizontal", 0),
    Sketcher.Constraint("Horizontal", 2),
    Sketcher.Constraint("Radius", 1, 30.0),
    Sketcher.Constraint("DistanceX", 0, 2, 0, 1, 40.0),
    Sketcher.Constraint("DistanceX", -1, 1, 1, 3, 110.0),
    Sketcher.Constraint("DistanceY", -1, 1, 1, 3, 140.0),
])
pad7 = body.newObject("PartDesign::Pad", "Pad006")
pad7.Profile = sketch15
pad7.Length = 10

# Sketch on XY plane
sketch16 = body.newObject("Sketcher::SketchObject", "Sketch015")
sketch16.AttachmentSupport = (doc.getObject("XY_Plane"), [""])
sketch16.MapMode = "FlatFace"
sketch16.AttachmentOffset = App.Placement(Vector(0, 0, 90), App.Rotation())
sketch16.addGeometry([
    Part.LineSegment(Vector(150, 160, 0), Vector(110, 160, 0)),
    Part.ArcOfCircle(Part.Circle(Vector(110, 140, 0), Vector(0, 0, 1), 20), math.radians(90), math.radians(270)),
    Part.LineSegment(Vector(110, 120, 0), Vector(150, 120, 0)),
    Part.ArcOfCircle(Part.Circle(Vector(150, 140, 0), Vector(0, 0, 1), 20), math.radians(-90), math.radians(90)),
], False)
sketch16.addConstraint([
    Sketcher.Constraint("Tangent", 0, 2, 1, 1),
    Sketcher.Constraint("Tangent", 1, 2, 2, 1),
    Sketcher.Constraint("Tangent", 2, 2, 3, 1),
    Sketcher.Constraint("Tangent", 3, 2, 0, 1),
    Sketcher.Constraint("Horizontal", 0),
    Sketcher.Constraint("Horizontal", 2),
    Sketcher.Constraint("Radius", 1, 20.0),
    Sketcher.Constraint("DistanceX", 0, 2, 0, 1, 40.0),
    Sketcher.Constraint("DistanceX", -1, 1, 1, 3, 110.0),
    Sketcher.Constraint("DistanceY", -1, 1, 1, 3, 140.0),
])
pocket9 = body.newObject("PartDesign::Pocket", "Pocket008")
pocket9.Profile = sketch16
pocket9.Length = 20

# Sketch on XY plane
sketch17 = body.newObject("Sketcher::SketchObject", "Sketch016")
sketch17.AttachmentSupport = (doc.getObject("XY_Plane"), [""])
sketch17.MapMode = "FlatFace"
sketch17.AttachmentOffset = App.Placement(Vector(0, 0, 50), App.Rotation())
sketch17.addGeometry([
    Part.LineSegment(Vector(110, 150, 0), Vector(150, 150, 0)),
    Part.ArcOfCircle(Part.Circle(Vector(150, 140, 0), Vector(0, 0, 1), 10), math.radians(-90), math.radians(90)),
    Part.LineSegment(Vector(150, 130, 0), Vector(110, 130, 0)),
    Part.ArcOfCircle(Part.Circle(Vector(110, 140, 0), Vector(0, 0, 1), 10), math.radians(90), math.radians(270)),
], False)
sketch17.addConstraint([
    Sketcher.Constraint("Tangent", 0, 2, 1, 2),
    Sketcher.Constraint("Tangent", 1, 1, 2, 1),
    Sketcher.Constraint("Tangent", 2, 2, 3, 2),
    Sketcher.Constraint("Tangent", 3, 1, 0, 1),
    Sketcher.Constraint("Horizontal", 0),
    Sketcher.Constraint("Horizontal", 2),
    Sketcher.Constraint("Radius", 1, 10.0),
    Sketcher.Constraint("DistanceX", 0, 1, 0, 2, 40.0),
    Sketcher.Constraint("DistanceX", -1, 1, 1, 3, 150.0),
    Sketcher.Constraint("DistanceY", -1, 1, 1, 3, 140.0),
])
pocket10 = body.newObject("PartDesign::Pocket", "Pocket009")
pocket10.Profile = sketch17
pocket10.Length = 62
pocket10.Reversed = True

# Sketch on XY plane
sketch18 = body.newObject("Sketcher::SketchObject", "Sketch017")
sketch18.AttachmentSupport = (doc.getObject("XY_Plane"), [""])
sketch18.MapMode = "FlatFace"
sketch18.AttachmentOffset = App.Placement(Vector(0, 0, 70), App.Rotation())
sketch18.addGeometry([
    Part.LineSegment(Vector(0, 70, 0), Vector(0, 40, 0)),  # 0
    Part.ArcOfCircle(Part.Circle(Vector(40, 40, 0), Vector(0, 0, 1), 40), math.radians(-180), math.radians(-90)),  # 1
    Part.LineSegment(Vector(40, 0, 0), Vector(70, 0, 0)),  # 2
    Part.LineSegment(Vector(70, 0, 0), Vector(70, 40, 0)),  # 3
    Part.ArcOfCircle(Part.Circle(Vector(40, 40, 0), Vector(0, 0, 1), 30), math.radians(0), math.radians(90)),  # 4
    Part.LineSegment(Vector(40, 70, 0), Vector(0, 70, 0)),  # 5
], False)
sketch18.addConstraint([
    Sketcher.Constraint("Tangent", 0, 2, 1, 1),
    Sketcher.Constraint("Tangent", 1, 2, 2, 1),
    Sketcher.Constraint("Coincident", 2, 2, 3, 1),
    Sketcher.Constraint("Tangent", 3, 2, 4, 1),
    Sketcher.Constraint("Tangent", 4, 2, 5, 1),
    Sketcher.Constraint("Coincident", 5, 2, 0, 1),
    Sketcher.Constraint("Vertical", 0),
    Sketcher.Constraint("Horizontal", 2),
    Sketcher.Constraint("Vertical", 3),
    Sketcher.Constraint("Horizontal", 5),
    Sketcher.Constraint("Coincident", 4, 3, 1, 3),
    Sketcher.Constraint("PointOnObject", 0, 2, -2),
    Sketcher.Constraint("PointOnObject", 1, 2, -1),
    Sketcher.Constraint("Radius", 1, 40.0),
    Sketcher.Constraint("Radius", 4, 30.0),
])
pocket11 = body.newObject("PartDesign::Pocket", "Pocket010")
pocket11.Profile = sketch18
pocket11.Length = 30

# Sketch on XY plane
sketch19 = body.newObject("Sketcher::SketchObject", "Sketch018")
sketch19.AttachmentSupport = (doc.getObject("XY_Plane"), [""])
sketch19.MapMode = "FlatFace"
sketch19.AttachmentOffset = App.Placement(Vector(0, 0, 70), App.Rotation())
sketch19.addGeometry([
    Part.ArcOfCircle(Part.Circle(Vector(100, 40, 0), Vector(0, 0, 1), 20), math.radians(90), math.radians(270)),  # 0
    Part.LineSegment(Vector(100, 60, 0), Vector(62, 60, 0)),  # 1
    Part.ArcOfCircle(Part.Circle(Vector(40, 40, 0), Vector(0, 0, 1), 30), math.radians(0), math.radians(42)),  # 2
    Part.LineSegment(Vector(70, 40, 0), Vector(70, 20, 0)),  # 3
    Part.LineSegment(Vector(70, 20, 0), Vector(100, 20, 0)),  # 4
], False)
sketch19.addConstraint([
    Sketcher.Constraint("Tangent", 0, 1, 1, 1),
    Sketcher.Constraint("Coincident", 1, 2, 2, 2),
    Sketcher.Constraint("Tangent", 2, 1, 3, 1),
    Sketcher.Constraint("Coincident", 3, 2, 4, 1),
    Sketcher.Constraint("Tangent", 4, 2, 0, 2),
    Sketcher.Constraint("Horizontal", 1),
    Sketcher.Constraint("Vertical", 3),
    Sketcher.Constraint("Horizontal", 4),
    Sketcher.Constraint("Horizontal", 0, 3, 2, 3),
    Sketcher.Constraint("Radius", 0, 20.0),
    Sketcher.Constraint("Radius", 2, 30.0),
    Sketcher.Constraint("DistanceX", 4, 1, 4, 2, 30.0),
    Sketcher.Constraint("DistanceX", -1, 1, 0, 3, 100.0),
    Sketcher.Constraint("DistanceY", -1, 1, 0, 3, 40.0),
])
pocket12 = body.newObject("PartDesign::Pocket", "Pocket011")
pocket12.Profile = sketch19
pocket12.Length = 15

# Sketch on XY plane
sketch20 = body.newObject("Sketcher::SketchObject", "Sketch019")
sketch20.AttachmentSupport = (doc.getObject("XY_Plane"), [""])
sketch20.MapMode = "FlatFace"
sketch20.AttachmentOffset = App.Placement(Vector(0, 0, 70), App.Rotation())
sketch20.addGeometry([
    Part.Circle(Vector(100, 40, 0), Vector(0, 0, 1), 20),
    Part.Circle(Vector(150, 40, 0), Vector(0, 0, 1), 20),
], False)
sketch20.addConstraint([
    Sketcher.Constraint("Equal", 0, 1),
    Sketcher.Constraint("Horizontal", 0, 3, 1, 3),
    Sketcher.Constraint("Diameter", 0, 40.0),
    Sketcher.Constraint("DistanceX", -1, 1, 0, 3, 100.0),
    Sketcher.Constraint("DistanceY", -1, 1, 0, 3, 40.0),
    Sketcher.Constraint("DistanceX", -1, 1, 1, 3, 150.0),
])
pocket13 = body.newObject("PartDesign::Pocket", "Pocket012")
pocket13.Profile = sketch20
pocket13.Length = 50

# Sketch on XY plane
sketch21 = body.newObject("Sketcher::SketchObject", "Sketch020")
sketch21.AttachmentSupport = (doc.getObject("XY_Plane"), [""])
sketch21.MapMode = "FlatFace"
sketch21.AttachmentOffset = App.Placement(Vector(0, 0, 40), App.Rotation())
sketch21.addGeometry(Part.Circle(Vector(40, 40, 0), Vector(0, 0, 1), 10), False)
sketch21.addConstraint([
    Sketcher.Constraint("Diameter", 0, 20.0),
    Sketcher.Constraint("DistanceX", -1, 1, 0, 3, 40.0),
    Sketcher.Constraint("DistanceY", -1, 1, 0, 3, 40.0),
])
pocket14 = body.newObject("PartDesign::Pocket", "Pocket013")
pocket14.Profile = sketch21
pocket14.Length = 20

# Sketch on XY plane
sketch22 = body.newObject("Sketcher::SketchObject", "Sketch021")
sketch22.AttachmentSupport = (doc.getObject("XY_Plane"), [""])
sketch22.MapMode = "FlatFace"
sketch22.addGeometry([
    Part.LineSegment(Vector(0, 40, 0), Vector(0, 70, 0)),  # 0
    Part.LineSegment(Vector(0, 70, 0), Vector(150, 70, 0)),  # 1
    Part.ArcOfCircle(Part.Circle(Vector(150, 40, 0), Vector(0, 0, 1), 30), math.radians(-90), math.radians(90)),  # 2
    Part.LineSegment(Vector(150, 10, 0), Vector(14, 10, 0)),  # 3
    Part.ArcOfCircle(Part.Circle(Vector(40, 40, 0), Vector(0, 0, 1), 40), math.radians(180), math.radians(229)),  # 4
], False)
sketch22.addConstraint([
    Sketcher.Constraint("Coincident", 0, 2, 1, 1),
    Sketcher.Constraint("Tangent", 1, 2, 2, 2),
    Sketcher.Constraint("Tangent", 2, 1, 3, 1),
    Sketcher.Constraint("Coincident", 3, 2, 4, 2),
    Sketcher.Constraint("Tangent", 4, 1, 0, 1),
    Sketcher.Constraint("Vertical", 0),
    Sketcher.Constraint("Horizontal", 1),
    Sketcher.Constraint("Horizontal", 3),
    Sketcher.Constraint("PointOnObject", 0, 2, -2),
    Sketcher.Constraint("Horizontal", 2, 3, 4, 3),
    Sketcher.Constraint("Radius", 2, 30.0),
    Sketcher.Constraint("Radius", 4, 40.0),
    Sketcher.Constraint("DistanceX", 1, 1, 1, 2, 150.0),
    Sketcher.Constraint("DistanceY", -1, 1, 2, 3, 40.0),
])
pocket15 = body.newObject("PartDesign::Pocket", "Pocket014")
pocket15.Profile = sketch22
pocket15.Length = 20
pocket15.Reversed = True

# Sketch on YZ plane
sketch23 = body.newObject("Sketcher::SketchObject", "Sketch022")
sketch23.AttachmentSupport = (doc.getObject("YZ_Plane"), [""])
sketch23.MapMode = "FlatFace"
sketch23.AttachmentOffset = App.Placement(Vector(0, 0, 190), App.Rotation())
add_polygon(sketch23, [(60, 10), (20, 10), (20, 0), (60, 0)])  # lines 0-3
sketch23.addConstraint([
    Sketcher.Constraint("Horizontal", 0),
    Sketcher.Constraint("Vertical", 1),
    Sketcher.Constraint("Horizontal", 2),
    Sketcher.Constraint("Vertical", 3),
    Sketcher.Constraint("PointOnObject", 1, 2, -1),
    Sketcher.Constraint("DistanceX", 0, 2, 0, 1, 40.0),
    Sketcher.Constraint("DistanceY", 1, 2, 1, 1, 10.0),
    Sketcher.Constraint("DistanceX", -1, 1, 0, 2, 20.0),
])
pocket16 = body.newObject("PartDesign::Pocket", "Pocket015")
pocket16.Profile = sketch23
pocket16.Length = 59

doc.recompute()
